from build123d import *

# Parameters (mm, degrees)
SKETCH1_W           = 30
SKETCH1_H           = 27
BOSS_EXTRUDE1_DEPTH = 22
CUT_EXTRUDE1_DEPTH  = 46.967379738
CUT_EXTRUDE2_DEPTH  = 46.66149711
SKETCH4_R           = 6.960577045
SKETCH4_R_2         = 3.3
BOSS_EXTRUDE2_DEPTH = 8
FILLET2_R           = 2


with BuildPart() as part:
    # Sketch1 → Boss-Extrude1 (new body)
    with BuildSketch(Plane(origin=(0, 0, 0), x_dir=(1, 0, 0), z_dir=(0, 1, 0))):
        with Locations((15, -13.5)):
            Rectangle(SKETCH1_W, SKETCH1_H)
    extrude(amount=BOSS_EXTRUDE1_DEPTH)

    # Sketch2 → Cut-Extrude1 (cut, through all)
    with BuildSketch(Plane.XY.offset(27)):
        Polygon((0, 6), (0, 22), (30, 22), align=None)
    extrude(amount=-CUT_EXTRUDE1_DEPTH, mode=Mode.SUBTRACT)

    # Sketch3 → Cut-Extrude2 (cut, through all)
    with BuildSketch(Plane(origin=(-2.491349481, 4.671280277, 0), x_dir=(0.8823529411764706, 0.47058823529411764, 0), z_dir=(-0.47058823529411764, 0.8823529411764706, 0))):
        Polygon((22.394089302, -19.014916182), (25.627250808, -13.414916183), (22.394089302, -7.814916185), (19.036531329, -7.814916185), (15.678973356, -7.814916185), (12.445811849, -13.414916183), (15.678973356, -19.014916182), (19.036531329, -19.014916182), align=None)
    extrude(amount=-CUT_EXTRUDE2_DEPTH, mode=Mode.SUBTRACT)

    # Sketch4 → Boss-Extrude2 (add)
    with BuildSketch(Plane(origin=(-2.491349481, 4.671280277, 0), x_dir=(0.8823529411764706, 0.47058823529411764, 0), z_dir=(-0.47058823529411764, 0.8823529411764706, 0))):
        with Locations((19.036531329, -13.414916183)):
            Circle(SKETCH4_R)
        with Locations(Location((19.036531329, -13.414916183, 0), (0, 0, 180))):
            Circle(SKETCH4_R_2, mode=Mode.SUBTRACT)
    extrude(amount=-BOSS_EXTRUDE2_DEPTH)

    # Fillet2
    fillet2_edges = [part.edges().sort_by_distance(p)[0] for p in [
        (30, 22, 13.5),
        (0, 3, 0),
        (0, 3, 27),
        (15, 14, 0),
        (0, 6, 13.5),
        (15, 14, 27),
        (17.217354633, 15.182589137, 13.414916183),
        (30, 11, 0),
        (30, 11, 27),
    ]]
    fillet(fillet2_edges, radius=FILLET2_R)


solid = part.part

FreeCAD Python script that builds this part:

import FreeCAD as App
import Part
import Sketcher
from FreeCAD import Vector
Q = App.Units.Quantity


def edges_at(feature, points):
    """Names of the edges that pass closest to the given points."""
    edges = feature.Shape.Edges
    near = lambda p: min(range(len(edges)), key=lambda i: edges[i].distToShape(Part.Vertex(*p))[0])
    return sorted({f"Edge{near(p) + 1}" for p in points})


def add_polygon(sketch, points):
    """Adds a closed chain of lines whose ends are joined by coincident constraints."""
    first, n = sketch.GeometryCount, len(points)
    for a, b in zip(points, points[1:] + points[:1]):
        sketch.addGeometry(Part.LineSegment(App.Vector(*a, 0), App.Vector(*b, 0)), False)
    for i in range(n):
        sketch.addConstraint(Sketcher.Constraint("Coincident", first + i, 2, first + (i + 1) % n, 1))

doc = App.newDocument("Part")
params = doc.addObject("Spreadsheet::Sheet", "Params")
for row, (alias, value) in enumerate([
    ("sketch1_width", "30 mm"),
    ("sketch1_height", "27 mm"),
    ("pad1_length", "22 mm"),
    ("sketch2_width", "30 mm"),
    ("sketch2_height", "16 mm"),
    ("sketch4_diameter", "6.6 mm"),
    ("pad2_length", "8 mm"),
    ("fillet_radius", "2 mm"),
], start=1):
    params.set(f"A{row}", alias)
    params.set(f"B{row}", "=" + value)
    params.setAlias(f"B{row}", alias)

body = doc.addObject("PartDesign::Body", "Body")

sketch1 = body.newObject("Sketcher::SketchObject", "Sketch")
sketch1.AttachmentSupport = (doc.getObject("XZ_Plane"), [""])
sketch1.MapMode = "FlatFace"
add_polygon(sketch1, [(0, 0), (0, 27), (30, 27), (30, 0)])
sketch1.addConstraint([
    Sketcher.Constraint("Vertical", 0),
    Sketcher.Constraint("Horizontal", 1),
    Sketcher.Constraint("Vertical", 2),
    Sketcher.Constraint("Horizontal", 3),
    Sketcher.Constraint("Coincident", 3, 2, -1, 1),
    Sketcher.Constraint("DistanceX", 1, 1, 1, 2, Q("30 mm")),
    Sketcher.Constraint("DistanceY", 0, 1, 0, 2, Q("27 mm")),
])
sketch1.setExpression("Constraints[9]", "Params.sketch1_width")
sketch1.setExpression("Constraints[10]", "Params.sketch1_height")
pad1 = body.newObject("PartDesign::Pad", "Pad")
pad1.Profile = sketch1
pad1.setExpression("Length", "Params.pad1_length")
pad1.Reversed = True

sketch2 = body.newObject("Sketcher::SketchObject", "Sketch001")
sketch2.AttachmentSupport = (doc.getObject("XY_Plane"), [""])
sketch2.MapMode = "FlatFace"
sketch2.AttachmentOffset = App.Placement(Vector(0, 0, 27), App.Rotation())
add_polygon(sketch2, [(0, 22), (0, 6), (30, 22)])
sketch2.addConstraint([
    Sketcher.Constraint("Vertical", 0),
    Sketcher.Constraint("Horizontal", 2),
    Sketcher.Constraint("PointOnObject", 0, 2, -2),
    Sketcher.Constraint("DistanceX", 2, 2, 2, 1, Q("30 mm")),
    Sketcher.Constraint("DistanceY", 0, 2, 0, 1, Q("16 mm")),
    Sketcher.Constraint("DistanceY", -1, 1, 0, 2, Q("6 mm")),
])
sketch2.setExpression("Constraints[6]", "Params.sketch2_width")
sketch2.setExpression("Constraints[7]", "Params.sketch2_height")
pocket1 = body.newObject("PartDesign::Pocket", "Pocket")
pocket1.Profile = sketch2
pocket1.Type = "ThroughAll"

sketch3 = body.newObject("Sketcher::SketchObject", "Sketch002")
sketch3.Placement = App.Placement(Vector(-2.491349, 4.67128, 0), App.Rotation(Vector(0.882352941, 0.470588235, 0), Vector(0, 0, -0.999999999), Vector(-0.470588235, 0.882352941, 0), "ZXY"))
add_polygon(sketch3, [(22.394089, -19.014916), (25.627251, -13.414916), (22.394089, -7.814916), (15.678973, -7.814916), (12.445812, -13.414916), (15.678973, -19.014916)])
sketch3.addConstraint([
    Sketcher.Constraint("Horizontal", 2),
    Sketcher.Constraint("Horizontal", 5),
    Sketcher.Constraint("Parallel", 0, 3),
    Sketcher.Constraint("Parallel", 1, 4),
    Sketcher.Constraint("Horizontal", 0, 2, 3, 2),
    Sketcher.Constraint("Vertical", 2, 2, 4, 2),
    Sketcher.Constraint("Vertical", 1, 2, 5, 2),
    Sketcher.Constraint("Angle", 0, Q("60 deg")),
    Sketcher.Constraint("DistanceY", 0, 2, 1, 2, Q("5.6 mm")),
    Sketcher.Constraint("DistanceX", 2, 2, 2, 1, Q("6.715116 mm")),
    Sketcher.Constraint("DistanceX", -1, 1, 0, 2, Q("25.627251 mm")),
    Sketcher.Constraint("DistanceY", 0, 2, -1, 1, Q("13.414916 mm")),
])
pocket2 = body.newObject("PartDesign::Pocket", "Pocket001")
pocket2.Profile = sketch3
pocket2.Type = "ThroughAll"

sketch4 = body.newObject("Sketcher::SketchObject", "Sketch003")
sketch4.Placement = App.Placement(Vector(-2.491349, 4.67128, 0), App.Rotation(Vector(0.882352941, 0.470588235, 0), Vector(0, 0, -0.999999999), Vector(-0.470588235, 0.882352941, 0), "ZXY"))
sketch4.addGeometry([
    Part.Circle(Vector(19.036531, -13.414916, 0), Vector(0, 0, 1), 6.960577),
    Part.Circle(Vector(19.036531, -13.414916, 0), Vector(0, 0, 1), 3.3),
], False)
sketch4.addConstraint([
    Sketcher.Constraint("Coincident", 1, 3, 0, 3),
    Sketcher.Constraint("Diameter", 1, Q("6.6 mm")),
    Sketcher.Constraint("Diameter", 0, Q("13.921154 mm")),
    Sketcher.Constraint("DistanceX", -1, 1, 0, 3, Q("19.036531 mm")),
    Sketcher.Constraint("DistanceY", 0, 3, -1, 1, Q("13.414916 mm")),
])
sketch4.setExpression("Constraints[1]", "Params.sketch4_diameter")
pad2 = body.newObject("PartDesign::Pad", "Pad001")
pad2.Profile = sketch4
pad2.setExpression("Length", "Params.pad2_length")
pad2.Reversed = True
doc.recompute()

fillet = body.newObject("PartDesign::Fillet", "Fillet")
fillet.Base = (pad2, edges_at(pad2, [
    (30, 22, 13.5),
    (0, 3, 0),
    (0, 3, 27),
    (15, 14, 0),
    (0, 6, 13.5),
    (15, 14, 27),
    (17.217, 15.183, 13.415),
    (30, 11, 0),
    (30, 11, 27),
]))
fillet.setExpression("Radius", "Params.fillet_radius")

doc.recompute()
